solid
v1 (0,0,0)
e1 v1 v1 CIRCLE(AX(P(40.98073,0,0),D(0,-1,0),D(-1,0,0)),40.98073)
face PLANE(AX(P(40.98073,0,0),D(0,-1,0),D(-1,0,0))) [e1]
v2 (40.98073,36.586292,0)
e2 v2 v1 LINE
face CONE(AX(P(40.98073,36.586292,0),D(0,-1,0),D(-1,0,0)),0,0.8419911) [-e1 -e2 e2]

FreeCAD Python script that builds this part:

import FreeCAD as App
import Part
import Sketcher

V = App.Vector


def add_polygon(sketch, points):
    """Adds a closed chain of lines whose ends are joined by coincident constraints."""
    first, n = sketch.GeometryCount, len(points)
    for a, b in zip(points, points[1:] + points[:1]):
        sketch.addGeometry(Part.LineSegment(App.Vector(*a, 0), App.Vector(*b, 0)), False)
    for i in range(n):
        sketch.addConstraint(Sketcher.Constraint("Coincident", first + i, 2, first + (i + 1) % n, 1))

doc = App.newDocument("Part")
params = doc.addObject("Spreadsheet::Sheet", "Params")
for row, (alias, value) in enumerate([
    ("revolution_angle", "360 deg"),
], start=1):
    params.set(f"A{row}", alias)
    params.set(f"B{row}", "=" + value)
    params.setAlias(f"B{row}", alias)

body = doc.addObject("PartDesign::Body", "Body")

sketch1 = doc.addObject("Sketcher::SketchObject", "Sketch")
body.addObject(sketch1)
sketch1.AttachmentSupport = (doc.XY_Plane, [""])
sketch1.MapMode = "FlatFace"
add_polygon(sketch1, [(40.98073, 36.586292), (0, 0), (40.98073, 0)])
sketch1.addGeometry(Part.LineSegment(V(40.98073, 36.586292, 0), V(40.98073, 0, 0)), True)
sketch1.addConstraint(Sketcher.Constraint("Horizontal", 1))
sketch1.addConstraint(Sketcher.Constraint("Vertical", 2))
sketch1.addConstraint(Sketcher.Constraint("Vertical", 3))
sketch1.addConstraint(Sketcher.Constraint("Coincident", 0, 2, -1, 1))
sketch1.addConstraint(Sketcher.Constraint("Coincident", 3, 1, 2, 2))
sketch1.addConstraint(Sketcher.Constraint("PointOnObject", 3, 2, -1))
sketch1.addConstraint(Sketcher.Constraint("DistanceX", 1, 1, 1, 2, 40.98073))
sketch1.addConstraint(Sketcher.Constraint("DistanceY", 2, 1, 2, 2, 36.586292))
revolution = doc.addObject("PartDesign::Revolution", "Revolution")
body.addObject(revolution)
revolution.Profile = sketch1
revolution.ReferenceAxis = (sketch1, ["Axis0"])
revolution.setExpression("Angle", "Params.revolution_angle")

doc.recompute()
